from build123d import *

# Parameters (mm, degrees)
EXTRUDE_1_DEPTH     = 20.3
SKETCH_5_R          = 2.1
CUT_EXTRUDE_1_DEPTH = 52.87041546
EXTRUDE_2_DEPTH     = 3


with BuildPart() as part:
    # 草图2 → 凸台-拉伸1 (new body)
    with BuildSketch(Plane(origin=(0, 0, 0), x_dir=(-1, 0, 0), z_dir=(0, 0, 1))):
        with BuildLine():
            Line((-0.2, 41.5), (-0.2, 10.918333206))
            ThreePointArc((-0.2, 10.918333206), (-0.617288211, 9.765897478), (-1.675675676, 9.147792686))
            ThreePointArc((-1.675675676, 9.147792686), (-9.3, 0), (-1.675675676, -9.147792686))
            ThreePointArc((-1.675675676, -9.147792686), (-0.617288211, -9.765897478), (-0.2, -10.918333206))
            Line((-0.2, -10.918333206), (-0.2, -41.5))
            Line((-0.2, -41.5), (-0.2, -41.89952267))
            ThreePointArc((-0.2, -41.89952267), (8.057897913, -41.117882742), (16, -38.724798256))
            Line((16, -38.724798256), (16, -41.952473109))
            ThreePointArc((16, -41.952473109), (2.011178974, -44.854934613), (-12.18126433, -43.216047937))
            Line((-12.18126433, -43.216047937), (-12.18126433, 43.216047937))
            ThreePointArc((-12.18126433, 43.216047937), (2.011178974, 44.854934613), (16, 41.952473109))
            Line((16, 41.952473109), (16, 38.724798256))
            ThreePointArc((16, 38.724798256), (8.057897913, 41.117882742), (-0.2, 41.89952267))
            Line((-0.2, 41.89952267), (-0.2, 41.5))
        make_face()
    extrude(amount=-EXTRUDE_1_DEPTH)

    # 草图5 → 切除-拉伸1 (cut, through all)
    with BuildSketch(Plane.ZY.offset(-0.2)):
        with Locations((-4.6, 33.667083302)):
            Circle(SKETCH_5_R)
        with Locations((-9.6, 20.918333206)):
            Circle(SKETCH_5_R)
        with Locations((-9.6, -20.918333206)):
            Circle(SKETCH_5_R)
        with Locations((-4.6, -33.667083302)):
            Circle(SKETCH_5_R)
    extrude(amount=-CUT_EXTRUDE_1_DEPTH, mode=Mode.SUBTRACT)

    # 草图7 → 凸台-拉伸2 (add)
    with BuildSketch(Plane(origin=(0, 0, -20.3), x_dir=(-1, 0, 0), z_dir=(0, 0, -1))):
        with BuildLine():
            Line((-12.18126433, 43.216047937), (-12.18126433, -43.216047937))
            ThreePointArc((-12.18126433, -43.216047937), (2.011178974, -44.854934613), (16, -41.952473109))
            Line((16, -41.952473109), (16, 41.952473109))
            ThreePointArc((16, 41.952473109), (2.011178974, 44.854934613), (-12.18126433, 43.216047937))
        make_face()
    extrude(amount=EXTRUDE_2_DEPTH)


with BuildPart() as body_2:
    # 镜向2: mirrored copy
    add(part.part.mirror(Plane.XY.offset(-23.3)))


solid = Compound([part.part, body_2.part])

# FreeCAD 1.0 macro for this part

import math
import FreeCAD as App
import Part
import Sketcher
Q = App.Units.Quantity

doc = App.newDocument("Part")
body = doc.addObject("PartDesign::Body", "Body")

sketch1 = body.newObject("Sketcher::SketchObject", "Sketch")
sketch1.AttachmentSupport = (doc.getObject("XY_Plane"), [""])
sketch1.MapMode = "FlatFace"
sketch1.addGeometry([
    Part.ArcOfCircle(Part.Circle(App.Vector(2, -10.9, 0), App.Vector(0, 0, 1), 1.8), math.radians(100), math.radians(180)),
    Part.LineSegment(App.Vector(0.2, -10.9, 0), App.Vector(0.2, -41.9, 0)),
    Part.ArcOfCircle(Part.Circle(App.Vector(0, 0, 0), App.Vector(0, 0, 1), 41.9), math.radians(-112), math.radians(-90)),
    Part.LineSegment(App.Vector(-16, -38.7, 0), App.Vector(-16, -42, 0)),
    Part.ArcOfCircle(Part.Circle(App.Vector(0, 0, 0), App.Vector(0, 0, 1), 44.9), math.radians(-111), math.radians(-74)),
    Part.LineSegment(App.Vector(12.2, -43.2, 0), App.Vector(12.2, 43.2, 0)),
    Part.ArcOfCircle(Part.Circle(App.Vector(0, 0, 0), App.Vector(0, 0, 1), 44.9), math.radians(74), math.radians(111)),
    Part.LineSegment(App.Vector(-16, 42, 0), App.Vector(-16, 38.7, 0)),
    Part.ArcOfCircle(Part.Circle(App.Vector(0, 0, 0), App.Vector(0, 0, 1), 41.9), math.radians(90), math.radians(112)),
    Part.LineSegment(App.Vector(0.2, 41.9, 0), App.Vector(0.2, 10.9, 0)),
    Part.ArcOfCircle(Part.Circle(App.Vector(2, 10.9, 0), App.Vector(0, 0, 1), 1.8), math.radians(-180), math.radians(-100)),
    Part.ArcOfCircle(Part.Circle(App.Vector(0, 0, 0), App.Vector(0, 0, 1), 9.3), math.radians(-80), math.radians(80)),
], False)
sketch1.addConstraint([
    Sketcher.Constraint("Tangent", 0, 2, 1, 1),
    Sketcher.Constraint("Coincident", 1, 2, 2, 2),
    Sketcher.Constraint("Coincident", 2, 1, 3, 1),
    Sketcher.Constraint("Coincident", 3, 2, 4, 1),
    Sketcher.Constraint("Coincident", 4, 2, 5, 1),
    Sketcher.Constraint("Coincident", 5, 2, 6, 1),
    Sketcher.Constraint("Coincident", 6, 2, 7, 1),
    Sketcher.Constraint("Coincident", 7, 2, 8, 2),
    Sketcher.Constraint("Coincident", 8, 1, 9, 1),
    Sketcher.Constraint("Tangent", 9, 2, 10, 1),
    Sketcher.Constraint("Tangent", 10, 2, 11, 2),
    Sketcher.Constraint("Tangent", 11, 1, 0, 1),
    Sketcher.Constraint("Vertical", 1),
    Sketcher.Constraint("Vertical", 3),
    Sketcher.Constraint("Vertical", 5),
    Sketcher.Constraint("Vertical", 7),
    Sketcher.Constraint("Vertical", 9),
    Sketcher.Constraint("Coincident", 2, 3, -1, 1),
    Sketcher.Constraint("Coincident", 4, 3, -1, 1),
    Sketcher.Constraint("Coincident", 6, 3, -1, 1),
    Sketcher.Constraint("Coincident", 8, 3, -1, 1),
    Sketcher.Constraint("Coincident", 11, 3, -1, 1),
    Sketcher.Constraint("Equal", 4, 6),
    Sketcher.Constraint("Equal", 2, 8),
    Sketcher.Constraint("Equal", 0, 10),
    Sketcher.Constraint("Vertical", 0, 3, 10, 3),
    Sketcher.Constraint("Vertical", 3, 2, 6, 2),
    Sketcher.Constraint("Radius", 0, Q("1.8 mm")),
    Sketcher.Constraint("Radius", 2, Q("41.9 mm")),
    Sketcher.Constraint("Radius", 4, Q("44.9 mm")),
    Sketcher.Constraint("Radius", 11, Q("9.3 mm")),
    Sketcher.Constraint("DistanceX", -1, 1, 0, 3, Q("2 mm")),
    Sketcher.Constraint("DistanceX", 2, 1, -1, 1, Q("16 mm")),
    Sketcher.Constraint("DistanceY", 5, 1, 5, 2, Q("86.432096 mm")),
])
pad1 = body.newObject("PartDesign::Pad", "Pad")
pad1.Profile = sketch1
pad1.Length = 20.3
pad1.Reversed = True

sketch2 = body.newObject("Sketcher::SketchObject", "Sketch001")
sketch2.AttachmentSupport = (doc.getObject("YZ_Plane"), [""])
sketch2.MapMode = "FlatFace"
sketch2.AttachmentOffset = App.Placement(App.Vector(0, 0, 0.2), App.Rotation())
sketch2.addGeometry([
    Part.Circle(App.Vector(33.7, -4.6, 0), App.Vector(0, 0, 1), 2.1),
    Part.Circle(App.Vector(20.9, -9.6, 0), App.Vector(0, 0, 1), 2.1),
    Part.Circle(App.Vector(-20.9, -9.6, 0), App.Vector(0, 0, 1), 2.1),
    Part.Circle(App.Vector(-33.7, -4.6, 0), App.Vector(0, 0, 1), 2.1),
], False)
sketch2.addConstraint([
    Sketcher.Constraint("Equal", 0, 1),
    Sketcher.Constraint("Equal", 1, 2),
    Sketcher.Constraint("Equal", 2, 3),
    Sketcher.Constraint("Symmetric", 1, 3, 2, 3, -2),
    Sketcher.Constraint("Symmetric", 0, 3, 3, 3, -2),
    Sketcher.Constraint("Diameter", 0, Q("4.2 mm")),
    Sketcher.Constraint("DistanceY", 1, 3, 0, 3, Q("5 mm")),
    Sketcher.Constraint("DistanceY", 0, 3, -1, 1, Q("4.6 mm")),
    Sketcher.Constraint("DistanceX", 1, 3, 0, 3, Q("12.74875 mm")),
    Sketcher.Constraint("DistanceX", -1, 1, 0, 3, Q("33.667083 mm")),
])
pocket1 = body.newObject("PartDesign::Pocket", "Pocket")
pocket1.Profile = sketch2
pocket1.Type = "ThroughAll"
pocket1.Reversed = True

sketch3 = body.newObject("Sketcher::SketchObject", "Sketch002")
sketch3.AttachmentSupport = (doc.getObject("XY_Plane"), [""])
sketch3.MapMode = "FlatFace"
sketch3.AttachmentOffset = App.Placement(App.Vector(0, 0, -20.3), App.Rotation())
sketch3.addGeometry([
    Part.LineSegment(App.Vector(12, 43, 0), App.Vector(12, -43, 0)),
    Part.ArcOfCircle(Part.Circle(App.Vector(0, 0, 0), App.Vector(0, 0, 1), 45), math.radians(-111), math.radians(-74)),
    Part.LineSegment(App.Vector(-16, -42, 0), App.Vector(-16, 42, 0)),
    Part.ArcOfCircle(Part.Circle(App.Vector(0, 0, 0), App.Vector(0, 0, 1), 45), math.radians(74), math.radians(111)),
], False)
sketch3.addConstraint([
    Sketcher.Constraint("Coincident", 0, 2, 1, 2),
    Sketcher.Constraint("Coincident", 1, 1, 2, 1),
    Sketcher.Constraint("Coincident", 2, 2, 3, 2),
    Sketcher.Constraint("Coincident", 3, 1, 0, 1),
    Sketcher.Constraint("Vertical", 0),
    Sketcher.Constraint("Vertical", 2),
    Sketcher.Constraint("Coincident", 1, 3, -1, 1),
    Sketcher.Constraint("Coincident", 3, 3, -1, 1),
    Sketcher.Constraint("Equal", 1, 3),
    Sketcher.Constraint("Radius", 1, Q("44.9 mm")),
    Sketcher.Constraint("DistanceX", 1, 1, -1, 1, Q("16 mm")),
    Sketcher.Constraint("DistanceY", 0, 2, 0, 1, Q("86.432096 mm")),
])
pad2 = body.newObject("PartDesign::Pad", "Pad001")
pad2.Profile = sketch3
pad2.Length = 3
pad2.Reversed = True
body2 = doc.addObject("PartDesign::Body", "Body001")
doc.recompute()

mirroring = doc.addObject("Part::Mirroring", "Mirroring")
mirroring.Source = body
mirroring.Base = App.Vector(0, 0, -23.3)
mirroring.Normal = App.Vector(0, 0, 1)
body2.BaseFeature = mirroring
doc.recompute()
mirroring.Visibility = False

doc.recompute()
